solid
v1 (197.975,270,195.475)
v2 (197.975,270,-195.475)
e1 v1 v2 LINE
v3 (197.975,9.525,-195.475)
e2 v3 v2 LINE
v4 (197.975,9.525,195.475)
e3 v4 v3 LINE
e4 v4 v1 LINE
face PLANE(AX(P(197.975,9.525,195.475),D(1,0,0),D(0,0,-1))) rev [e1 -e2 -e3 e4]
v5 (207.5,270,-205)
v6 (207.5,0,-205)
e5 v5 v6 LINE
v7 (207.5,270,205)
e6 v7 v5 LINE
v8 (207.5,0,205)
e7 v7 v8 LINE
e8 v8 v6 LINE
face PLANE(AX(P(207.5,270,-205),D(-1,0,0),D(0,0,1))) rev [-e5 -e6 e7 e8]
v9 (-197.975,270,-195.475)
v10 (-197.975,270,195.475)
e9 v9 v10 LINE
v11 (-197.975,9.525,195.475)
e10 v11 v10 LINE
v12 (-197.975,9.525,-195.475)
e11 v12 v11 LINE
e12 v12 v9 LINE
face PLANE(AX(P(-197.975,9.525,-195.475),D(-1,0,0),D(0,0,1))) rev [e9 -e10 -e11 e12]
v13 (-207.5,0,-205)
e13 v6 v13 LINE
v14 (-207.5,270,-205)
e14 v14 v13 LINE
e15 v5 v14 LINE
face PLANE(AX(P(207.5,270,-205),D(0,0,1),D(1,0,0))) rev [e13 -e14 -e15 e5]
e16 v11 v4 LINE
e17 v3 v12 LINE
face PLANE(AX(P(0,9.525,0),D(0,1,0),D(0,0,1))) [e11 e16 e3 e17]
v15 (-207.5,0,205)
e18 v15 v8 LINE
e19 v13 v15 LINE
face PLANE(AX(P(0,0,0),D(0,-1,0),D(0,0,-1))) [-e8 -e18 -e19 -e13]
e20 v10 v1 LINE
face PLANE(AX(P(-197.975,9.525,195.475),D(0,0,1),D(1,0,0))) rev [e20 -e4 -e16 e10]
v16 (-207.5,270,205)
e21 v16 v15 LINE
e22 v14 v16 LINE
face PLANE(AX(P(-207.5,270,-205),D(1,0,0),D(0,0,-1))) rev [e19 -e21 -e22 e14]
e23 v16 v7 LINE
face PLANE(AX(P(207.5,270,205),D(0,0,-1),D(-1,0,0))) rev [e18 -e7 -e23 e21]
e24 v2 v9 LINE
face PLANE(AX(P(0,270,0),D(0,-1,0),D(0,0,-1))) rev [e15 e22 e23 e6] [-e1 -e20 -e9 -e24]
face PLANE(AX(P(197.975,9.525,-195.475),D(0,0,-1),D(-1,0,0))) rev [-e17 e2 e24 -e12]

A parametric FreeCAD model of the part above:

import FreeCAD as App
import Part
import Sketcher
from FreeCAD import Vector
Q = App.Units.Quantity

doc = App.newDocument("Part")
params = doc.addObject("Spreadsheet::Sheet", "Params")
for row, (alias, value) in enumerate([
    ("sketch1_width", "415 mm"),
    ("sketch1_height", "410 mm"),
    ("pad1_length", "270 mm"),
    ("sketch2_width", "395.95 mm"),
    ("sketch2_height", "390.95 mm"),
    ("pocket1_length", "260.475 mm"),
], start=1):
    params.set(f"A{row}", alias)
    params.set(f"B{row}", "=" + value)
    params.setAlias(f"B{row}", alias)

body = doc.addObject("PartDesign::Body", "Body")

# Sketch on XZ plane
sketch1 = body.newObject("Sketcher::SketchObject", "Sketch")
sketch1.AttachmentSupport = (doc.getObject("XZ_Plane"), [""])
sketch1.MapMode = "FlatFace"
sketch1.addGeometry(Part.LineSegment(Vector(-208, -205, 0), Vector(-208, 205, 0)), False)
sketch1.addGeometry(Part.LineSegment(Vector(-208, 205, 0), Vector(208, 205, 0)), False)
sketch1.addGeometry(Part.LineSegment(Vector(208, 205, 0), Vector(208, -205, 0)), False)
sketch1.addGeometry(Part.LineSegment(Vector(208, -205, 0), Vector(-208, -205, 0)), False)
sketch1.addConstraint(Sketcher.Constraint("Coincident", 0, 2, 1, 1))
sketch1.addConstraint(Sketcher.Constraint("Coincident", 1, 2, 2, 1))
sketch1.addConstraint(Sketcher.Constraint("Coincident", 2, 2, 3, 1))
sketch1.addConstraint(Sketcher.Constraint("Coincident", 3, 2, 0, 1))
sketch1.addConstraint(Sketcher.Constraint("Vertical", 0))
sketch1.addConstraint(Sketcher.Constraint("Horizontal", 1))
sketch1.addConstraint(Sketcher.Constraint("Vertical", 2))
sketch1.addConstraint(Sketcher.Constraint("Horizontal", 3))
sketch1.addConstraint(Sketcher.Constraint("Symmetric", 0, 2, 2, 2, -1, 1))
sketch1.addConstraint(Sketcher.Constraint("DistanceX", 1, 1, 1, 2, Q("415 mm")))
sketch1.addConstraint(Sketcher.Constraint("DistanceY", 0, 1, 0, 2, Q("410 mm")))
sketch1.setExpression("Constraints[9]", "Params.sketch1_width")
sketch1.setExpression("Constraints[10]", "Params.sketch1_height")
pad1 = body.newObject("PartDesign::Pad", "Pad")
pad1.Profile = sketch1
pad1.setExpression("Length", "Params.pad1_length")
pad1.Reversed = True

# Sketch on XZ plane
sketch2 = body.newObject("Sketcher::SketchObject", "Sketch001")
sketch2.AttachmentSupport = (doc.getObject("XZ_Plane"), [""])
sketch2.MapMode = "FlatFace"
sketch2.AttachmentOffset = App.Placement(Vector(0, 0, -270), App.Rotation())
sketch2.addGeometry(Part.LineSegment(Vector(-198, -195, 0), Vector(-198, 195, 0)), False)
sketch2.addGeometry(Part.LineSegment(Vector(-198, 195, 0), Vector(198, 195, 0)), False)
sketch2.addGeometry(Part.LineSegment(Vector(198, 195, 0), Vector(198, -195, 0)), False)
sketch2.addGeometry(Part.LineSegment(Vector(198, -195, 0), Vector(-198, -195, 0)), False)
sketch2.addConstraint(Sketcher.Constraint("Coincident", 0, 2, 1, 1))
sketch2.addConstraint(Sketcher.Constraint("Coincident", 1, 2, 2, 1))
sketch2.addConstraint(Sketcher.Constraint("Coincident", 2, 2, 3, 1))
sketch2.addConstraint(Sketcher.Constraint("Coincident", 3, 2, 0, 1))
sketch2.addConstraint(Sketcher.Constraint("Vertical", 0))
sketch2.addConstraint(Sketcher.Constraint("Horizontal", 1))
sketch2.addConstraint(Sketcher.Constraint("Vertical", 2))
sketch2.addConstraint(Sketcher.Constraint("Horizontal", 3))
sketch2.addConstraint(Sketcher.Constraint("Symmetric", 0, 2, 2, 2, -1, 1))
sketch2.addConstraint(Sketcher.Constraint("DistanceX", 1, 1, 1, 2, Q("395.95 mm")))
sketch2.addConstraint(Sketcher.Constraint("DistanceY", 0, 1, 0, 2, Q("390.95 mm")))
sketch2.setExpression("Constraints[9]", "Params.sketch2_width")
sketch2.setExpression("Constraints[10]", "Params.sketch2_height")
pocket1 = body.newObject("PartDesign::Pocket", "Pocket")
pocket1.Profile = sketch2
pocket1.setExpression("Length", "Params.pocket1_length")
pocket1.Reversed = True

doc.recompute()
